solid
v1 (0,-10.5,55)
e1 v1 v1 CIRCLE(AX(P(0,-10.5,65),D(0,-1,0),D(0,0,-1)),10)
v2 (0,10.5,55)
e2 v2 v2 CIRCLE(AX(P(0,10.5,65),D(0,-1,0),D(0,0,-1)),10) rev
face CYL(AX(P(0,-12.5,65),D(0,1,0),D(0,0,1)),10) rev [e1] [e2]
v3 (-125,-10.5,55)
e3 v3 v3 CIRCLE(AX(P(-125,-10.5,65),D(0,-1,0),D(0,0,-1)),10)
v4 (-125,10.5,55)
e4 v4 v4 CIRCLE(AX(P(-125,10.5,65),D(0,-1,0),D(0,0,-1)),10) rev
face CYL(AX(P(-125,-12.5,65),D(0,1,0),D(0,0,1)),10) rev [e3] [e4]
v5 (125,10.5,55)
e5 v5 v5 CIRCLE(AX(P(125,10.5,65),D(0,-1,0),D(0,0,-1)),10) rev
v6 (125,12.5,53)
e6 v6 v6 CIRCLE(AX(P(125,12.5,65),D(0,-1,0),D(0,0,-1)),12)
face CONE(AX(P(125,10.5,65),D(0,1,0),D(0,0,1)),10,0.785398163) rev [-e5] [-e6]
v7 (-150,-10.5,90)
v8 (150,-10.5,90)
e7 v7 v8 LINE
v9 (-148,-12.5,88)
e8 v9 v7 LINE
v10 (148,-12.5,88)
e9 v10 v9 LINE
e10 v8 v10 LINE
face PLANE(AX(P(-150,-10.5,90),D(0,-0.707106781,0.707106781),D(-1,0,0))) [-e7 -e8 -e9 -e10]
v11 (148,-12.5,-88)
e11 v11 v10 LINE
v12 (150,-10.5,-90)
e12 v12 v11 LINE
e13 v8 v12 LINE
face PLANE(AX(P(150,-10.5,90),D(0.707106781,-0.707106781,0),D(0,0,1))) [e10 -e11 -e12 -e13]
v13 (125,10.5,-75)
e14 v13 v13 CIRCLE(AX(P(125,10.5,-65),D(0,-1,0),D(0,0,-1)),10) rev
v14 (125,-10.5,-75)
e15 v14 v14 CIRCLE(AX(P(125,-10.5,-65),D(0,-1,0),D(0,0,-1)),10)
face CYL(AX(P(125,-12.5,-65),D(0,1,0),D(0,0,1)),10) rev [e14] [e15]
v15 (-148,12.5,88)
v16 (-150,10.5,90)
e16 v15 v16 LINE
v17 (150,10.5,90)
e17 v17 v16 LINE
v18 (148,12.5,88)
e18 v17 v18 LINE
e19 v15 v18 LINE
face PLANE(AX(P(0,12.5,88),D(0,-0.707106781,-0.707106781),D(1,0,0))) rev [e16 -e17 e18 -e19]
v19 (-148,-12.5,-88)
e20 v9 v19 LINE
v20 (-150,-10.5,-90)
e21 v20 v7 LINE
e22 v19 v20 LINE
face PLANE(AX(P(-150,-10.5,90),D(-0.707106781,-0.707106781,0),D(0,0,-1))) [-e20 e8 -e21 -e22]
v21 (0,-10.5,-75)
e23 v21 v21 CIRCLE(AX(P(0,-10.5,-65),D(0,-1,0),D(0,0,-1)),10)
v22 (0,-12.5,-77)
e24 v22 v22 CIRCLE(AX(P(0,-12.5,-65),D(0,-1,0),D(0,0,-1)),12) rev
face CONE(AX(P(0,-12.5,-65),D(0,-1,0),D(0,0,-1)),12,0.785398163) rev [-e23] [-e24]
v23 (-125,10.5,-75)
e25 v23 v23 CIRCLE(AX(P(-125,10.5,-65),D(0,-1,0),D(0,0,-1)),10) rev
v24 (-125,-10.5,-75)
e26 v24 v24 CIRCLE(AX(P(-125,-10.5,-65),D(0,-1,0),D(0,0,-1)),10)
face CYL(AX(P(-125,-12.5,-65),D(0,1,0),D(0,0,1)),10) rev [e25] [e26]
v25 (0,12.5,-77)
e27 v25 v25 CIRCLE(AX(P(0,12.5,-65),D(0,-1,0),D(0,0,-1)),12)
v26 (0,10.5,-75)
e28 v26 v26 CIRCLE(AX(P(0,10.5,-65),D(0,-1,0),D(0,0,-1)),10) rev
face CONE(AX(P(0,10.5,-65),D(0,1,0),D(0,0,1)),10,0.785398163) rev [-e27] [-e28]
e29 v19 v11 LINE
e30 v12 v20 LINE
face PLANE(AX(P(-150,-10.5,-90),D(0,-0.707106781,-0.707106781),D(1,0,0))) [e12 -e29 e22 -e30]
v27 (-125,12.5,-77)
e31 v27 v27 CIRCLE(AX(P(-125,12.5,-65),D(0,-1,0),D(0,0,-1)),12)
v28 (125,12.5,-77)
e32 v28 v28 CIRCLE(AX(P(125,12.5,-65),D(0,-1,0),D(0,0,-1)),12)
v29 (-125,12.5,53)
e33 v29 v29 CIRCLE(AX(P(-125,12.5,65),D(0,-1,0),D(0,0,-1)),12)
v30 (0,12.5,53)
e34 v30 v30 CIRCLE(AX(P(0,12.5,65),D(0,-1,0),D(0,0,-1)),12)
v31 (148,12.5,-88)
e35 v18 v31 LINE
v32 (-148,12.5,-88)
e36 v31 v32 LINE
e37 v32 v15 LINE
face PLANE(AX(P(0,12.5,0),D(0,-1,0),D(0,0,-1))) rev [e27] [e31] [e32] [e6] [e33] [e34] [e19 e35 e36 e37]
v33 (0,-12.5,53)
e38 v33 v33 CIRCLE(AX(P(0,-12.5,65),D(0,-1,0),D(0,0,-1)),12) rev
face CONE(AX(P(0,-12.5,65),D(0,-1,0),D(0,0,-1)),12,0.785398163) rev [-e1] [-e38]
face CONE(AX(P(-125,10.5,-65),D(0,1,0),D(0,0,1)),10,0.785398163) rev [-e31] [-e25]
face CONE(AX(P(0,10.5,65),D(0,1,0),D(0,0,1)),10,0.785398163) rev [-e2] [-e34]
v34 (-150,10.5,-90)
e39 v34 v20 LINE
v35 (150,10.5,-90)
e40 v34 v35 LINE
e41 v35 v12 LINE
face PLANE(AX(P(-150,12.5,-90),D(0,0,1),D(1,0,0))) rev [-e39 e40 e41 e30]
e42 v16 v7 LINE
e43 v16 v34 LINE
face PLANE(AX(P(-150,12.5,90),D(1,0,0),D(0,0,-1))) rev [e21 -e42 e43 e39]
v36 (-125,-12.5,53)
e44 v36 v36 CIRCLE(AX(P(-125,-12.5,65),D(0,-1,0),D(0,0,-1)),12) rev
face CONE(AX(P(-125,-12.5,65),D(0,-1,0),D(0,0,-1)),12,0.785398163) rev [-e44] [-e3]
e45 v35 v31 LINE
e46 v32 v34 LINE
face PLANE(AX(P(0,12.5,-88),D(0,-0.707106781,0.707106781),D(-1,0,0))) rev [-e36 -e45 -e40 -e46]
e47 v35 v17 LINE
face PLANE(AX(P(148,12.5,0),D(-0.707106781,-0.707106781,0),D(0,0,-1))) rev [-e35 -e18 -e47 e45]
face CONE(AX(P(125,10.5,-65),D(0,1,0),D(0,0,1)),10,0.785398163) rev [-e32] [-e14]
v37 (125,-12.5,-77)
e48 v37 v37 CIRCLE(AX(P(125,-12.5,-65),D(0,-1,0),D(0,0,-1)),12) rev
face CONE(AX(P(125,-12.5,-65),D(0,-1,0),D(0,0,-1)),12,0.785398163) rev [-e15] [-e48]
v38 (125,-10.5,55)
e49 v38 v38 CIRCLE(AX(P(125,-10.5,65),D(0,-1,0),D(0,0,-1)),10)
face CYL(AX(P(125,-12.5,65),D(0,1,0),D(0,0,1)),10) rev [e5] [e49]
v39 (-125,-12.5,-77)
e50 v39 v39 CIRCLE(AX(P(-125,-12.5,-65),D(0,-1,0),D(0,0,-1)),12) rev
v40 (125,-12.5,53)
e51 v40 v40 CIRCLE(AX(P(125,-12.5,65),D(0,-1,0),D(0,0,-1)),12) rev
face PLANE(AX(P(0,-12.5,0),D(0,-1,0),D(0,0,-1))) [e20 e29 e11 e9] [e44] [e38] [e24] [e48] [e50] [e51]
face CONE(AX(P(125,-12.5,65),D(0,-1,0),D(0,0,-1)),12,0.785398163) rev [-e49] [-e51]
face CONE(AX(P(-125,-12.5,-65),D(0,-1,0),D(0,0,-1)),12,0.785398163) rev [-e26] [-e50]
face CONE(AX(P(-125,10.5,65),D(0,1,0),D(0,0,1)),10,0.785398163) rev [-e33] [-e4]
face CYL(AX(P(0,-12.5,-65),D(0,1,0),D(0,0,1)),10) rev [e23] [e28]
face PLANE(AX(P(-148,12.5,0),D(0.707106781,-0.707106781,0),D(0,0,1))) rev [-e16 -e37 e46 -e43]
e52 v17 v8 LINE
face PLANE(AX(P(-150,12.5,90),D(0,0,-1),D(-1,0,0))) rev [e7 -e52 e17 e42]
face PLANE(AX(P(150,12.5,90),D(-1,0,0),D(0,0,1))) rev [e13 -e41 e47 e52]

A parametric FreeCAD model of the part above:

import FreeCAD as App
import Part
import Sketcher

V = App.Vector
Q = App.Units.Quantity


def edges_at(feature, points):
    """Names of the edges that pass closest to the given points."""
    edges = feature.Shape.Edges
    near = lambda p: min(range(len(edges)), key=lambda i: edges[i].distToShape(Part.Vertex(*p))[0])
    return sorted({f"Edge{near(p) + 1}" for p in points})


def add_polygon(sketch, points):
    """Adds a closed chain of lines whose ends are joined by coincident constraints."""
    first, n = sketch.GeometryCount, len(points)
    for a, b in zip(points, points[1:] + points[:1]):
        sketch.addGeometry(Part.LineSegment(App.Vector(*a, 0), App.Vector(*b, 0)), False)
    for i in range(n):
        sketch.addConstraint(Sketcher.Constraint("Coincident", first + i, 2, first + (i + 1) % n, 1))

doc = App.newDocument("Part")
body = doc.addObject("PartDesign::Body", "Body")

# Sketch on XZ plane
sketch1 = body.newObject("Sketcher::SketchObject", "Sketch")
sketch1.AttachmentSupport = (doc.getObject("XZ_Plane"), [""])
sketch1.MapMode = "FlatFace"
add_polygon(sketch1, [(-150, -90), (-150, 90), (150, 90), (150, -90)])  # lines 0-3
sketch1.addConstraint(Sketcher.Constraint("Vertical", 0))
sketch1.addConstraint(Sketcher.Constraint("Horizontal", 1))
sketch1.addConstraint(Sketcher.Constraint("Vertical", 2))
sketch1.addConstraint(Sketcher.Constraint("Horizontal", 3))
sketch1.addConstraint(Sketcher.Constraint("Symmetric", 0, 2, 2, 2, -1, 1))
sketch1.addConstraint(Sketcher.Constraint("DistanceX", 1, 1, 1, 2, Q("300 mm")))
sketch1.addConstraint(Sketcher.Constraint("DistanceY", 0, 1, 0, 2, Q("180 mm")))
pad1 = body.newObject("PartDesign::Pad", "Pad")
pad1.Profile = sketch1
pad1.Length = 25
pad1.Midplane = True

# Sketch on XZ plane
sketch2 = body.newObject("Sketcher::SketchObject", "Sketch001")
sketch2.AttachmentSupport = (doc.getObject("XZ_Plane"), [""])
sketch2.MapMode = "FlatFace"
sketch2.AttachmentOffset = App.Placement(V(0, 0, -12.5), App.Rotation())
sketch2.addGeometry(Part.Circle(V(-125, -65, 0), V(0, 0, 1), 10), False)
sketch2.addGeometry(Part.Circle(V(0, -65, 0), V(0, 0, 1), 10), False)
sketch2.addGeometry(Part.Circle(V(125, -65, 0), V(0, 0, 1), 10), False)
sketch2.addGeometry(Part.Circle(V(0, 65, 0), V(0, 0, 1), 10), False)
sketch2.addGeometry(Part.Circle(V(125, 65, 0), V(0, 0, 1), 10), False)
sketch2.addGeometry(Part.Circle(V(-125, 65, 0), V(0, 0, 1), 10), False)
sketch2.addConstraint(Sketcher.Constraint("Equal", 0, 1))
sketch2.addConstraint(Sketcher.Constraint("Equal", 1, 2))
sketch2.addConstraint(Sketcher.Constraint("Equal", 2, 3))
sketch2.addConstraint(Sketcher.Constraint("Equal", 3, 4))
sketch2.addConstraint(Sketcher.Constraint("Equal", 4, 5))
sketch2.addConstraint(Sketcher.Constraint("Symmetric", 1, 3, 3, 3, -1, 1))
sketch2.addConstraint(Sketcher.Constraint("Symmetric", 0, 3, 4, 3, -1, 1))
sketch2.addConstraint(Sketcher.Constraint("Symmetric", 2, 3, 5, 3, -1, 1))
sketch2.addConstraint(Sketcher.Constraint("Symmetric", 0, 3, 2, 3, -2))
sketch2.addConstraint(Sketcher.Constraint("PointOnObject", 1, 3, -2))
sketch2.addConstraint(Sketcher.Constraint("Horizontal", 0, 3, 1, 3))
sketch2.addConstraint(Sketcher.Constraint("Diameter", 0, Q("20 mm")))
sketch2.addConstraint(Sketcher.Constraint("DistanceX", 0, 3, -1, 1, Q("125 mm")))
sketch2.addConstraint(Sketcher.Constraint("DistanceY", 0, 3, -1, 1, Q("65 mm")))
pocket1 = body.newObject("PartDesign::Pocket", "Pocket")
pocket1.Profile = sketch2
pocket1.Length = 25
pocket1.Reversed = True
doc.recompute()

chamfer = body.newObject("PartDesign::Chamfer", "Chamfer")
chamfer.Base = (pocket1, edges_at(pocket1, [
    (-150, 12.5, 0),
    (0, 12.5, 90),
    (-135, 12.5, -65),
    (-10, 12.5, -65),
    (115, 12.5, -65),
    (-10, 12.5, 65),
    (115, 12.5, 65),
    (-135, 12.5, 65),
    (150, 12.5, 0),
    (0, 12.5, -90),
]))
chamfer.Size = 2
doc.recompute()

chamfer2 = body.newObject("PartDesign::Chamfer", "Chamfer001")
chamfer2.Base = (chamfer, edges_at(chamfer, [
    (-135, -12.5, -65),
    (-10, -12.5, -65),
    (115, -12.5, -65),
    (-10, -12.5, 65),
    (115, -12.5, 65),
    (-135, -12.5, 65),
    (0, -12.5, 90),
    (-150, -12.5, 0),
    (0, -12.5, -90),
    (150, -12.5, 0),
]))
chamfer2.Size = 2

doc.recompute()
